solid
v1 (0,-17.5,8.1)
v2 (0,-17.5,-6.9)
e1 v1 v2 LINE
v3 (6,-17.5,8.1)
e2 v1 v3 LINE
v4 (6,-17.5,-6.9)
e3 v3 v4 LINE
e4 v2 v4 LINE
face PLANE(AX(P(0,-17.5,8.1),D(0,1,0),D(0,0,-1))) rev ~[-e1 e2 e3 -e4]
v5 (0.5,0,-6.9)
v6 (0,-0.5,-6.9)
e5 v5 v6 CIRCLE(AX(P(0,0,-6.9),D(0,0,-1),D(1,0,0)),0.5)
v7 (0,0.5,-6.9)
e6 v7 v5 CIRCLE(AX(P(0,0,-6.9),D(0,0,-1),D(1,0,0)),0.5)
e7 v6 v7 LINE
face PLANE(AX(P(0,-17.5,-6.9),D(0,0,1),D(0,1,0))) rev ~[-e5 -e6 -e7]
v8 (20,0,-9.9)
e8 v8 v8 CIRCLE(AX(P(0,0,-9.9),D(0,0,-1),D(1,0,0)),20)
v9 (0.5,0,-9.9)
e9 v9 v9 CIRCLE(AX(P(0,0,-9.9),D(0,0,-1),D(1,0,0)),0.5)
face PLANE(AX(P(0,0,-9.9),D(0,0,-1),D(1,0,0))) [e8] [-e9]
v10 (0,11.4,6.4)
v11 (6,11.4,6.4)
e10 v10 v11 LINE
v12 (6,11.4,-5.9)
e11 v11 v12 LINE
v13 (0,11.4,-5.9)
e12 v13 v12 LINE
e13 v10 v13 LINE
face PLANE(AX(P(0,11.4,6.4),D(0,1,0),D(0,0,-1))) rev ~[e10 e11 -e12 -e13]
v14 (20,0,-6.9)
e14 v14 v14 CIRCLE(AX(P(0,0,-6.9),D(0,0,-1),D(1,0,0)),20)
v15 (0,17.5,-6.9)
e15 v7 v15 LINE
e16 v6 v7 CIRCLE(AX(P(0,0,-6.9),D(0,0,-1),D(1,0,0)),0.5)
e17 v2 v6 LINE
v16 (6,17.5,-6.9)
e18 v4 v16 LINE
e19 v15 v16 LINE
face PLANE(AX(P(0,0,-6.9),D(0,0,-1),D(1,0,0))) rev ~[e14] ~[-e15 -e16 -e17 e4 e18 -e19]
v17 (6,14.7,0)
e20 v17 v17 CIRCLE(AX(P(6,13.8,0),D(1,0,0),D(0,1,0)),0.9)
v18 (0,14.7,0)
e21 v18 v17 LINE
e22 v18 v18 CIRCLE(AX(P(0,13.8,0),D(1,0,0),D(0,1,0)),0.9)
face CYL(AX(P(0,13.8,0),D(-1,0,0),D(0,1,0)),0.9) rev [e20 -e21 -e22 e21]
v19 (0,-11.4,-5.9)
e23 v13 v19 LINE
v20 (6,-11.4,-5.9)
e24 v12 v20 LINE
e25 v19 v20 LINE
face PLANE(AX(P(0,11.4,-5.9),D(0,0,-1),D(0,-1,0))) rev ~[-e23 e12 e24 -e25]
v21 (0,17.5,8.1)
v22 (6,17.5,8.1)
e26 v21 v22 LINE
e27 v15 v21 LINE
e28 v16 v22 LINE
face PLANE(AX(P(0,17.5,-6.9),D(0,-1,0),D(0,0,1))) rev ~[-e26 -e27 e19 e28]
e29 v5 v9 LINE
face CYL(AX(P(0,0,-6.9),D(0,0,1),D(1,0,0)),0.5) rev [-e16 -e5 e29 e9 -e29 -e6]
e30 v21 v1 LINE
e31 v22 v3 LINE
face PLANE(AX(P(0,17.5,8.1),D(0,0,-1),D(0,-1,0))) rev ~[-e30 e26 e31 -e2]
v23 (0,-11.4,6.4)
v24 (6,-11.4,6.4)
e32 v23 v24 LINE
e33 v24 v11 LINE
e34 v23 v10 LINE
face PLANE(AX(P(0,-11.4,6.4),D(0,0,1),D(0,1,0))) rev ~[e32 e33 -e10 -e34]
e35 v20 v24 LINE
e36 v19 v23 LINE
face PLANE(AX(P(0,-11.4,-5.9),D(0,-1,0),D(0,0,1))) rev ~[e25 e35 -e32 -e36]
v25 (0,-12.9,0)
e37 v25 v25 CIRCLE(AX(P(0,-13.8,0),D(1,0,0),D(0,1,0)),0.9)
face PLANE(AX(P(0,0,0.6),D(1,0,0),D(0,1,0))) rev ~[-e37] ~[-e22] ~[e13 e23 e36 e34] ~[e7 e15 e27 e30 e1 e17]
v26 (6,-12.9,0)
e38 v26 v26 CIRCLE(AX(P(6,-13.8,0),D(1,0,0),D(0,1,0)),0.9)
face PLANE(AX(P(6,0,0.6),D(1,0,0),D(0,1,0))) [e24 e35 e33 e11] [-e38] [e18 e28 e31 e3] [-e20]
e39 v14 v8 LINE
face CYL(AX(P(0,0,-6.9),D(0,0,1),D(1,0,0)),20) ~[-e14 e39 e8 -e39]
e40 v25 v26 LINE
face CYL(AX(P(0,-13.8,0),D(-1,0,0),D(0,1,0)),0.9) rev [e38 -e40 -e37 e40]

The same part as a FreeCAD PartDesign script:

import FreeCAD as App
import Part
import Sketcher
from FreeCAD import Vector

doc = App.newDocument("Part")
body = doc.addObject("PartDesign::Body", "Body")

sketch1 = doc.addObject("Sketcher::SketchObject", "Sketch")
body.addObject(sketch1)
sketch1.AttachmentSupport = (doc.YZ_Plane, [""])
sketch1.MapMode = "FlatFace"
sketch1.addGeometry([
    Part.LineSegment(Vector(17.5, -6.9, 0), Vector(17.5, 8.1, 0)),
    Part.LineSegment(Vector(17.5, 8.1, 0), Vector(-17.5, 8.1, 0)),
    Part.LineSegment(Vector(-17.5, 8.1, 0), Vector(-17.5, -6.9, 0)),
    Part.LineSegment(Vector(-17.5, -6.9, 0), Vector(17.5, -6.9, 0)),
    Part.Circle(Vector(-13.8, 0, 0), Vector(0, 0, 1), 0.9),
    Part.Circle(Vector(13.8, 0, 0), Vector(0, 0, 1), 0.9),
    Part.LineSegment(Vector(-11.4, 6.4, 0), Vector(11.4, 6.4, 0)),
    Part.LineSegment(Vector(11.4, 6.4, 0), Vector(11.4, -5.9, 0)),
    Part.LineSegment(Vector(11.4, -5.9, 0), Vector(-11.4, -5.9, 0)),
    Part.LineSegment(Vector(-11.4, -5.9, 0), Vector(-11.4, 6.4, 0)),
], False)
sketch1.addConstraint([
    Sketcher.Constraint("Coincident", 0, 2, 1, 1),
    Sketcher.Constraint("Coincident", 1, 2, 2, 1),
    Sketcher.Constraint("Coincident", 2, 2, 3, 1),
    Sketcher.Constraint("Coincident", 3, 2, 0, 1),
    Sketcher.Constraint("Coincident", 6, 2, 7, 1),
    Sketcher.Constraint("Coincident", 7, 2, 8, 1),
    Sketcher.Constraint("Coincident", 8, 2, 9, 1),
    Sketcher.Constraint("Coincident", 9, 2, 6, 1),
    Sketcher.Constraint("Vertical", 0),
    Sketcher.Constraint("Horizontal", 1),
    Sketcher.Constraint("Vertical", 2),
    Sketcher.Constraint("Horizontal", 3),
    Sketcher.Constraint("Horizontal", 6),
    Sketcher.Constraint("Vertical", 7),
    Sketcher.Constraint("Horizontal", 8),
    Sketcher.Constraint("Vertical", 9),
    Sketcher.Constraint("Equal", 4, 5),
    Sketcher.Constraint("Symmetric", 4, 3, 5, 3, -1, 1),
    Sketcher.Constraint("PointOnObject", 4, 3, -1),
    Sketcher.Constraint("Diameter", 4, 1.8),
    Sketcher.Constraint("DistanceX", 1, 2, 1, 1, 35.0),
    Sketcher.Constraint("DistanceY", 0, 1, 0, 2, 15.0),
    Sketcher.Constraint("DistanceX", 6, 1, 6, 2, 22.8),
    Sketcher.Constraint("DistanceY", 7, 2, 7, 1, 12.3),
    Sketcher.Constraint("DistanceY", 3, 2, 7, 2, 1.0),
    Sketcher.Constraint("DistanceX", 4, 3, -1, 1, 13.8),
    Sketcher.Constraint("DistanceX", -1, 1, 0, 2, 17.5),
    Sketcher.Constraint("DistanceY", -1, 1, 0, 2, 8.1),
    Sketcher.Constraint("DistanceX", -1, 1, 6, 2, 11.4),
])
pad1 = doc.addObject("PartDesign::Pad", "Pad")
body.addObject(pad1)
pad1.Profile = sketch1
pad1.Length = 6

sketch2 = doc.addObject("Sketcher::SketchObject", "Sketch001")
body.addObject(sketch2)
sketch2.AttachmentSupport = (doc.XY_Plane, [""])
sketch2.MapMode = "FlatFace"
sketch2.AttachmentOffset = App.Placement(Vector(0, 0, -6.9), App.Rotation())
sketch2.addGeometry([
    Part.Circle(Vector(0, 0, 0), Vector(0, 0, 1), 20),
    Part.Circle(Vector(0, 0, 0), Vector(0, 0, 1), 0.5),
], False)
sketch2.addConstraint([
    Sketcher.Constraint("Coincident", 0, 3, -1, 1),
    Sketcher.Constraint("Coincident", 1, 3, -1, 1),
    Sketcher.Constraint("Diameter", 0, 40.0),
    Sketcher.Constraint("Diameter", 1, 1.0),
])
pad2 = doc.addObject("PartDesign::Pad", "Pad001")
body.addObject(pad2)
pad2.Profile = sketch2
pad2.Length = 3
pad2.Reversed = True

doc.recompute()
